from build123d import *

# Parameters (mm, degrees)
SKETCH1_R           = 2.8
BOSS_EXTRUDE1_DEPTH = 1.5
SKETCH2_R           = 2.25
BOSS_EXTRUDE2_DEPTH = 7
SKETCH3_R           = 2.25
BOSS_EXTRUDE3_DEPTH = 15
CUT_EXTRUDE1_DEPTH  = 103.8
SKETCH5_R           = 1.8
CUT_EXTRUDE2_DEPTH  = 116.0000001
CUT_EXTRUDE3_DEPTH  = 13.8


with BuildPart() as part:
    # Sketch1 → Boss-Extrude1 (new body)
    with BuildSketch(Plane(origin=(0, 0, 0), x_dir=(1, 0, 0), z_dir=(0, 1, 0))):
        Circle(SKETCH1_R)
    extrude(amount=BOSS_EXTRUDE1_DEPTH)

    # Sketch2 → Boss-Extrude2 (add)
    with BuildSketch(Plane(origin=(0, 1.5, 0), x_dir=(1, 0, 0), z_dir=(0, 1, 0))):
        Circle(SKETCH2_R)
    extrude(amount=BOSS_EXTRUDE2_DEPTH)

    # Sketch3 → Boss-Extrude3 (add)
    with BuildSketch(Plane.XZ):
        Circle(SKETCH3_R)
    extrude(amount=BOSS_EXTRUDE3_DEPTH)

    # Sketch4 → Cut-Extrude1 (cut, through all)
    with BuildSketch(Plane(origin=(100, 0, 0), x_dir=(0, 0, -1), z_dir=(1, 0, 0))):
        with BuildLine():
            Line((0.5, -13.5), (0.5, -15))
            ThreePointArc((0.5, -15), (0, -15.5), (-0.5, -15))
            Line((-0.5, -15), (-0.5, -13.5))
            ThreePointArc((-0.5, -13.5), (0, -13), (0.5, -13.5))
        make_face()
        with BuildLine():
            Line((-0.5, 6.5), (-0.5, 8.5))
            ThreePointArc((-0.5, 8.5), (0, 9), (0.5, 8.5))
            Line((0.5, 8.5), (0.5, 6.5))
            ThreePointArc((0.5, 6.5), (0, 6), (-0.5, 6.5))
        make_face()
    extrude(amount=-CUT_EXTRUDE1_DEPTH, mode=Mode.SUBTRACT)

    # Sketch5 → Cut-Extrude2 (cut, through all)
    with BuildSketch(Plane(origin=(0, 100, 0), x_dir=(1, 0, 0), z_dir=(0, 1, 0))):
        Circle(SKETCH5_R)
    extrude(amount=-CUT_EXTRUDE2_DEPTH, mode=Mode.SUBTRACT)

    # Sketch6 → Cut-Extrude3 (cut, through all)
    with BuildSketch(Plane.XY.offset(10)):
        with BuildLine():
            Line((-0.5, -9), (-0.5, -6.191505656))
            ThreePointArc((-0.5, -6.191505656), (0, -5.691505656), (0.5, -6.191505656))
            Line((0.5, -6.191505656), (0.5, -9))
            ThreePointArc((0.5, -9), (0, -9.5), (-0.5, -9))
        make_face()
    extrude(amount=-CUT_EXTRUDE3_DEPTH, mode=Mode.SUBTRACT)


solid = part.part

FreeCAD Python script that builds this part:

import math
import FreeCAD as App
import Part
import Sketcher

V = App.Vector

doc = App.newDocument("Part")
body = doc.addObject("PartDesign::Body", "Body")

# Sketch on XZ plane
sketch1 = body.newObject("Sketcher::SketchObject", "Sketch")
sketch1.AttachmentSupport = (doc.getObject("XZ_Plane"), [""])
sketch1.MapMode = "FlatFace"
sketch1.addGeometry(Part.Circle(V(0, 0, 0), V(0, 0, 1), 2.8), False)
sketch1.addConstraint(Sketcher.Constraint("Coincident", 0, 3, -1, 1))
sketch1.addConstraint(Sketcher.Constraint("Diameter", 0, 5.6))
pad1 = body.newObject("PartDesign::Pad", "Pad")
pad1.Profile = sketch1
pad1.Length = 1.5
pad1.Reversed = True

# Sketch on XZ plane
sketch2 = body.newObject("Sketcher::SketchObject", "Sketch001")
sketch2.AttachmentSupport = (doc.getObject("XZ_Plane"), [""])
sketch2.MapMode = "FlatFace"
sketch2.AttachmentOffset = App.Placement(V(0, 0, -1.5), App.Rotation())
sketch2.addGeometry(Part.Circle(V(0, 0, 0), V(0, 0, 1), 2.2), False)
sketch2.addConstraint(Sketcher.Constraint("Coincident", 0, 3, -1, 1))
sketch2.addConstraint(Sketcher.Constraint("Diameter", 0, 4.5))
pad2 = body.newObject("PartDesign::Pad", "Pad001")
pad2.Profile = sketch2
pad2.Length = 7
pad2.Reversed = True

# Sketch on XZ plane
sketch3 = body.newObject("Sketcher::SketchObject", "Sketch002")
sketch3.AttachmentSupport = (doc.getObject("XZ_Plane"), [""])
sketch3.MapMode = "FlatFace"
sketch3.addGeometry(Part.Circle(V(0, 0, 0), V(0, 0, 1), 2.2), False)
sketch3.addConstraint(Sketcher.Constraint("Coincident", 0, 3, -1, 1))
sketch3.addConstraint(Sketcher.Constraint("Diameter", 0, 4.5))
pad3 = body.newObject("PartDesign::Pad", "Pad002")
pad3.Profile = sketch3
pad3.Length = 15

# Sketch on YZ plane
sketch4 = body.newObject("Sketcher::SketchObject", "Sketch003")
sketch4.AttachmentSupport = (doc.getObject("YZ_Plane"), [""])
sketch4.MapMode = "FlatFace"
sketch4.AttachmentOffset = App.Placement(V(0, 0, 100), App.Rotation())
sketch4.addGeometry(Part.LineSegment(V(-15, -0.5, 0), V(-13.5, -0.5, 0)), False)
sketch4.addGeometry(Part.ArcOfCircle(Part.Circle(V(-13.5, 0, 0), V(0, 0, 1), 0.5), math.radians(-90), math.radians(90)), False)
sketch4.addGeometry(Part.LineSegment(V(-13.5, 0.5, 0), V(-15, 0.5, 0)), False)
sketch4.addGeometry(Part.ArcOfCircle(Part.Circle(V(-15, 0, 0), V(0, 0, 1), 0.5), math.radians(90), math.radians(270)), False)
sketch4.addGeometry(Part.LineSegment(V(8.5, 0.5, 0), V(6.5, 0.5, 0)), False)
sketch4.addGeometry(Part.ArcOfCircle(Part.Circle(V(6.5, 0, 0), V(0, 0, 1), 0.5), math.radians(90), math.radians(270)), False)
sketch4.addGeometry(Part.LineSegment(V(6.5, -0.5, 0), V(8.5, -0.5, 0)), False)
sketch4.addGeometry(Part.ArcOfCircle(Part.Circle(V(8.5, 0, 0), V(0, 0, 1), 0.5), math.radians(-90), math.radians(90)), False)
sketch4.addConstraint(Sketcher.Constraint("Tangent", 0, 2, 1, 1))
sketch4.addConstraint(Sketcher.Constraint("Tangent", 1, 2, 2, 1))
sketch4.addConstraint(Sketcher.Constraint("Tangent", 2, 2, 3, 1))
sketch4.addConstraint(Sketcher.Constraint("Tangent", 3, 2, 0, 1))
sketch4.addConstraint(Sketcher.Constraint("Tangent", 4, 2, 5, 1))
sketch4.addConstraint(Sketcher.Constraint("Tangent", 5, 2, 6, 1))
sketch4.addConstraint(Sketcher.Constraint("Tangent", 6, 2, 7, 1))
sketch4.addConstraint(Sketcher.Constraint("Tangent", 7, 2, 4, 1))
sketch4.addConstraint(Sketcher.Constraint("Horizontal", 0))
sketch4.addConstraint(Sketcher.Constraint("Horizontal", 2))
sketch4.addConstraint(Sketcher.Constraint("Horizontal", 4))
sketch4.addConstraint(Sketcher.Constraint("Horizontal", 6))
sketch4.addConstraint(Sketcher.Constraint("Equal", 3, 5))
sketch4.addConstraint(Sketcher.Constraint("PointOnObject", 1, 3, -1))
sketch4.addConstraint(Sketcher.Constraint("PointOnObject", 5, 3, -1))
sketch4.addConstraint(Sketcher.Constraint("Radius", 1, 0.5))
sketch4.addConstraint(Sketcher.Constraint("DistanceX", 4, 2, 4, 1, 2.0))
sketch4.addConstraint(Sketcher.Constraint("DistanceX", 0, 1, 0, 2, 1.5))
sketch4.addConstraint(Sketcher.Constraint("DistanceX", 3, 3, -1, 1, 15.0))
sketch4.addConstraint(Sketcher.Constraint("DistanceX", 1, 3, 5, 3, 20.0))
pocket1 = body.newObject("PartDesign::Pocket", "Pocket")
pocket1.Profile = sketch4
pocket1.Type = "ThroughAll"

# Sketch on XZ plane
sketch5 = body.newObject("Sketcher::SketchObject", "Sketch004")
sketch5.AttachmentSupport = (doc.getObject("XZ_Plane"), [""])
sketch5.MapMode = "FlatFace"
sketch5.AttachmentOffset = App.Placement(V(0, 0, -100), App.Rotation())
sketch5.addGeometry(Part.Circle(V(0, 0, 0), V(0, 0, 1), 1.8), False)
sketch5.addConstraint(Sketcher.Constraint("Coincident", 0, 3, -1, 1))
sketch5.addConstraint(Sketcher.Constraint("Diameter", 0, 3.6))
pocket2 = body.newObject("PartDesign::Pocket", "Pocket001")
pocket2.Profile = sketch5
pocket2.Type = "ThroughAll"
pocket2.Reversed = True

# Sketch on XY plane
sketch6 = body.newObject("Sketcher::SketchObject", "Sketch005")
sketch6.AttachmentSupport = (doc.getObject("XY_Plane"), [""])
sketch6.MapMode = "FlatFace"
sketch6.AttachmentOffset = App.Placement(V(0, 0, 10), App.Rotation())
sketch6.addGeometry(Part.LineSegment(V(-0.5, -6.2, 0), V(-0.5, -9, 0)), False)
sketch6.addGeometry(Part.ArcOfCircle(Part.Circle(V(0, -9, 0), V(0, 0, 1), 0.5), math.radians(180), math.radians(360)), False)
sketch6.addGeometry(Part.LineSegment(V(0.5, -9, 0), V(0.5, -6.2, 0)), False)
sketch6.addGeometry(Part.ArcOfCircle(Part.Circle(V(0, -6.2, 0), V(0, 0, 1), 0.5), math.radians(0), math.radians(180)), False)
sketch6.addConstraint(Sketcher.Constraint("Tangent", 0, 2, 1, 1))
sketch6.addConstraint(Sketcher.Constraint("Tangent", 1, 2, 2, 1))
sketch6.addConstraint(Sketcher.Constraint("Tangent", 2, 2, 3, 1))
sketch6.addConstraint(Sketcher.Constraint("Tangent", 3, 2, 0, 1))
sketch6.addConstraint(Sketcher.Constraint("Vertical", 0))
sketch6.addConstraint(Sketcher.Constraint("Vertical", 2))
sketch6.addConstraint(Sketcher.Constraint("PointOnObject", 1, 3, -2))
sketch6.addConstraint(Sketcher.Constraint("Radius", 1, 0.5))
sketch6.addConstraint(Sketcher.Constraint("DistanceY", 1, 3, -1, 1, 9.0))
sketch6.addConstraint(Sketcher.Constraint("DistanceY", 0, 2, 0, 1, 2.808494))
pocket3 = body.newObject("PartDesign::Pocket", "Pocket002")
pocket3.Profile = sketch6
pocket3.Type = "ThroughAll"

doc.recompute()
